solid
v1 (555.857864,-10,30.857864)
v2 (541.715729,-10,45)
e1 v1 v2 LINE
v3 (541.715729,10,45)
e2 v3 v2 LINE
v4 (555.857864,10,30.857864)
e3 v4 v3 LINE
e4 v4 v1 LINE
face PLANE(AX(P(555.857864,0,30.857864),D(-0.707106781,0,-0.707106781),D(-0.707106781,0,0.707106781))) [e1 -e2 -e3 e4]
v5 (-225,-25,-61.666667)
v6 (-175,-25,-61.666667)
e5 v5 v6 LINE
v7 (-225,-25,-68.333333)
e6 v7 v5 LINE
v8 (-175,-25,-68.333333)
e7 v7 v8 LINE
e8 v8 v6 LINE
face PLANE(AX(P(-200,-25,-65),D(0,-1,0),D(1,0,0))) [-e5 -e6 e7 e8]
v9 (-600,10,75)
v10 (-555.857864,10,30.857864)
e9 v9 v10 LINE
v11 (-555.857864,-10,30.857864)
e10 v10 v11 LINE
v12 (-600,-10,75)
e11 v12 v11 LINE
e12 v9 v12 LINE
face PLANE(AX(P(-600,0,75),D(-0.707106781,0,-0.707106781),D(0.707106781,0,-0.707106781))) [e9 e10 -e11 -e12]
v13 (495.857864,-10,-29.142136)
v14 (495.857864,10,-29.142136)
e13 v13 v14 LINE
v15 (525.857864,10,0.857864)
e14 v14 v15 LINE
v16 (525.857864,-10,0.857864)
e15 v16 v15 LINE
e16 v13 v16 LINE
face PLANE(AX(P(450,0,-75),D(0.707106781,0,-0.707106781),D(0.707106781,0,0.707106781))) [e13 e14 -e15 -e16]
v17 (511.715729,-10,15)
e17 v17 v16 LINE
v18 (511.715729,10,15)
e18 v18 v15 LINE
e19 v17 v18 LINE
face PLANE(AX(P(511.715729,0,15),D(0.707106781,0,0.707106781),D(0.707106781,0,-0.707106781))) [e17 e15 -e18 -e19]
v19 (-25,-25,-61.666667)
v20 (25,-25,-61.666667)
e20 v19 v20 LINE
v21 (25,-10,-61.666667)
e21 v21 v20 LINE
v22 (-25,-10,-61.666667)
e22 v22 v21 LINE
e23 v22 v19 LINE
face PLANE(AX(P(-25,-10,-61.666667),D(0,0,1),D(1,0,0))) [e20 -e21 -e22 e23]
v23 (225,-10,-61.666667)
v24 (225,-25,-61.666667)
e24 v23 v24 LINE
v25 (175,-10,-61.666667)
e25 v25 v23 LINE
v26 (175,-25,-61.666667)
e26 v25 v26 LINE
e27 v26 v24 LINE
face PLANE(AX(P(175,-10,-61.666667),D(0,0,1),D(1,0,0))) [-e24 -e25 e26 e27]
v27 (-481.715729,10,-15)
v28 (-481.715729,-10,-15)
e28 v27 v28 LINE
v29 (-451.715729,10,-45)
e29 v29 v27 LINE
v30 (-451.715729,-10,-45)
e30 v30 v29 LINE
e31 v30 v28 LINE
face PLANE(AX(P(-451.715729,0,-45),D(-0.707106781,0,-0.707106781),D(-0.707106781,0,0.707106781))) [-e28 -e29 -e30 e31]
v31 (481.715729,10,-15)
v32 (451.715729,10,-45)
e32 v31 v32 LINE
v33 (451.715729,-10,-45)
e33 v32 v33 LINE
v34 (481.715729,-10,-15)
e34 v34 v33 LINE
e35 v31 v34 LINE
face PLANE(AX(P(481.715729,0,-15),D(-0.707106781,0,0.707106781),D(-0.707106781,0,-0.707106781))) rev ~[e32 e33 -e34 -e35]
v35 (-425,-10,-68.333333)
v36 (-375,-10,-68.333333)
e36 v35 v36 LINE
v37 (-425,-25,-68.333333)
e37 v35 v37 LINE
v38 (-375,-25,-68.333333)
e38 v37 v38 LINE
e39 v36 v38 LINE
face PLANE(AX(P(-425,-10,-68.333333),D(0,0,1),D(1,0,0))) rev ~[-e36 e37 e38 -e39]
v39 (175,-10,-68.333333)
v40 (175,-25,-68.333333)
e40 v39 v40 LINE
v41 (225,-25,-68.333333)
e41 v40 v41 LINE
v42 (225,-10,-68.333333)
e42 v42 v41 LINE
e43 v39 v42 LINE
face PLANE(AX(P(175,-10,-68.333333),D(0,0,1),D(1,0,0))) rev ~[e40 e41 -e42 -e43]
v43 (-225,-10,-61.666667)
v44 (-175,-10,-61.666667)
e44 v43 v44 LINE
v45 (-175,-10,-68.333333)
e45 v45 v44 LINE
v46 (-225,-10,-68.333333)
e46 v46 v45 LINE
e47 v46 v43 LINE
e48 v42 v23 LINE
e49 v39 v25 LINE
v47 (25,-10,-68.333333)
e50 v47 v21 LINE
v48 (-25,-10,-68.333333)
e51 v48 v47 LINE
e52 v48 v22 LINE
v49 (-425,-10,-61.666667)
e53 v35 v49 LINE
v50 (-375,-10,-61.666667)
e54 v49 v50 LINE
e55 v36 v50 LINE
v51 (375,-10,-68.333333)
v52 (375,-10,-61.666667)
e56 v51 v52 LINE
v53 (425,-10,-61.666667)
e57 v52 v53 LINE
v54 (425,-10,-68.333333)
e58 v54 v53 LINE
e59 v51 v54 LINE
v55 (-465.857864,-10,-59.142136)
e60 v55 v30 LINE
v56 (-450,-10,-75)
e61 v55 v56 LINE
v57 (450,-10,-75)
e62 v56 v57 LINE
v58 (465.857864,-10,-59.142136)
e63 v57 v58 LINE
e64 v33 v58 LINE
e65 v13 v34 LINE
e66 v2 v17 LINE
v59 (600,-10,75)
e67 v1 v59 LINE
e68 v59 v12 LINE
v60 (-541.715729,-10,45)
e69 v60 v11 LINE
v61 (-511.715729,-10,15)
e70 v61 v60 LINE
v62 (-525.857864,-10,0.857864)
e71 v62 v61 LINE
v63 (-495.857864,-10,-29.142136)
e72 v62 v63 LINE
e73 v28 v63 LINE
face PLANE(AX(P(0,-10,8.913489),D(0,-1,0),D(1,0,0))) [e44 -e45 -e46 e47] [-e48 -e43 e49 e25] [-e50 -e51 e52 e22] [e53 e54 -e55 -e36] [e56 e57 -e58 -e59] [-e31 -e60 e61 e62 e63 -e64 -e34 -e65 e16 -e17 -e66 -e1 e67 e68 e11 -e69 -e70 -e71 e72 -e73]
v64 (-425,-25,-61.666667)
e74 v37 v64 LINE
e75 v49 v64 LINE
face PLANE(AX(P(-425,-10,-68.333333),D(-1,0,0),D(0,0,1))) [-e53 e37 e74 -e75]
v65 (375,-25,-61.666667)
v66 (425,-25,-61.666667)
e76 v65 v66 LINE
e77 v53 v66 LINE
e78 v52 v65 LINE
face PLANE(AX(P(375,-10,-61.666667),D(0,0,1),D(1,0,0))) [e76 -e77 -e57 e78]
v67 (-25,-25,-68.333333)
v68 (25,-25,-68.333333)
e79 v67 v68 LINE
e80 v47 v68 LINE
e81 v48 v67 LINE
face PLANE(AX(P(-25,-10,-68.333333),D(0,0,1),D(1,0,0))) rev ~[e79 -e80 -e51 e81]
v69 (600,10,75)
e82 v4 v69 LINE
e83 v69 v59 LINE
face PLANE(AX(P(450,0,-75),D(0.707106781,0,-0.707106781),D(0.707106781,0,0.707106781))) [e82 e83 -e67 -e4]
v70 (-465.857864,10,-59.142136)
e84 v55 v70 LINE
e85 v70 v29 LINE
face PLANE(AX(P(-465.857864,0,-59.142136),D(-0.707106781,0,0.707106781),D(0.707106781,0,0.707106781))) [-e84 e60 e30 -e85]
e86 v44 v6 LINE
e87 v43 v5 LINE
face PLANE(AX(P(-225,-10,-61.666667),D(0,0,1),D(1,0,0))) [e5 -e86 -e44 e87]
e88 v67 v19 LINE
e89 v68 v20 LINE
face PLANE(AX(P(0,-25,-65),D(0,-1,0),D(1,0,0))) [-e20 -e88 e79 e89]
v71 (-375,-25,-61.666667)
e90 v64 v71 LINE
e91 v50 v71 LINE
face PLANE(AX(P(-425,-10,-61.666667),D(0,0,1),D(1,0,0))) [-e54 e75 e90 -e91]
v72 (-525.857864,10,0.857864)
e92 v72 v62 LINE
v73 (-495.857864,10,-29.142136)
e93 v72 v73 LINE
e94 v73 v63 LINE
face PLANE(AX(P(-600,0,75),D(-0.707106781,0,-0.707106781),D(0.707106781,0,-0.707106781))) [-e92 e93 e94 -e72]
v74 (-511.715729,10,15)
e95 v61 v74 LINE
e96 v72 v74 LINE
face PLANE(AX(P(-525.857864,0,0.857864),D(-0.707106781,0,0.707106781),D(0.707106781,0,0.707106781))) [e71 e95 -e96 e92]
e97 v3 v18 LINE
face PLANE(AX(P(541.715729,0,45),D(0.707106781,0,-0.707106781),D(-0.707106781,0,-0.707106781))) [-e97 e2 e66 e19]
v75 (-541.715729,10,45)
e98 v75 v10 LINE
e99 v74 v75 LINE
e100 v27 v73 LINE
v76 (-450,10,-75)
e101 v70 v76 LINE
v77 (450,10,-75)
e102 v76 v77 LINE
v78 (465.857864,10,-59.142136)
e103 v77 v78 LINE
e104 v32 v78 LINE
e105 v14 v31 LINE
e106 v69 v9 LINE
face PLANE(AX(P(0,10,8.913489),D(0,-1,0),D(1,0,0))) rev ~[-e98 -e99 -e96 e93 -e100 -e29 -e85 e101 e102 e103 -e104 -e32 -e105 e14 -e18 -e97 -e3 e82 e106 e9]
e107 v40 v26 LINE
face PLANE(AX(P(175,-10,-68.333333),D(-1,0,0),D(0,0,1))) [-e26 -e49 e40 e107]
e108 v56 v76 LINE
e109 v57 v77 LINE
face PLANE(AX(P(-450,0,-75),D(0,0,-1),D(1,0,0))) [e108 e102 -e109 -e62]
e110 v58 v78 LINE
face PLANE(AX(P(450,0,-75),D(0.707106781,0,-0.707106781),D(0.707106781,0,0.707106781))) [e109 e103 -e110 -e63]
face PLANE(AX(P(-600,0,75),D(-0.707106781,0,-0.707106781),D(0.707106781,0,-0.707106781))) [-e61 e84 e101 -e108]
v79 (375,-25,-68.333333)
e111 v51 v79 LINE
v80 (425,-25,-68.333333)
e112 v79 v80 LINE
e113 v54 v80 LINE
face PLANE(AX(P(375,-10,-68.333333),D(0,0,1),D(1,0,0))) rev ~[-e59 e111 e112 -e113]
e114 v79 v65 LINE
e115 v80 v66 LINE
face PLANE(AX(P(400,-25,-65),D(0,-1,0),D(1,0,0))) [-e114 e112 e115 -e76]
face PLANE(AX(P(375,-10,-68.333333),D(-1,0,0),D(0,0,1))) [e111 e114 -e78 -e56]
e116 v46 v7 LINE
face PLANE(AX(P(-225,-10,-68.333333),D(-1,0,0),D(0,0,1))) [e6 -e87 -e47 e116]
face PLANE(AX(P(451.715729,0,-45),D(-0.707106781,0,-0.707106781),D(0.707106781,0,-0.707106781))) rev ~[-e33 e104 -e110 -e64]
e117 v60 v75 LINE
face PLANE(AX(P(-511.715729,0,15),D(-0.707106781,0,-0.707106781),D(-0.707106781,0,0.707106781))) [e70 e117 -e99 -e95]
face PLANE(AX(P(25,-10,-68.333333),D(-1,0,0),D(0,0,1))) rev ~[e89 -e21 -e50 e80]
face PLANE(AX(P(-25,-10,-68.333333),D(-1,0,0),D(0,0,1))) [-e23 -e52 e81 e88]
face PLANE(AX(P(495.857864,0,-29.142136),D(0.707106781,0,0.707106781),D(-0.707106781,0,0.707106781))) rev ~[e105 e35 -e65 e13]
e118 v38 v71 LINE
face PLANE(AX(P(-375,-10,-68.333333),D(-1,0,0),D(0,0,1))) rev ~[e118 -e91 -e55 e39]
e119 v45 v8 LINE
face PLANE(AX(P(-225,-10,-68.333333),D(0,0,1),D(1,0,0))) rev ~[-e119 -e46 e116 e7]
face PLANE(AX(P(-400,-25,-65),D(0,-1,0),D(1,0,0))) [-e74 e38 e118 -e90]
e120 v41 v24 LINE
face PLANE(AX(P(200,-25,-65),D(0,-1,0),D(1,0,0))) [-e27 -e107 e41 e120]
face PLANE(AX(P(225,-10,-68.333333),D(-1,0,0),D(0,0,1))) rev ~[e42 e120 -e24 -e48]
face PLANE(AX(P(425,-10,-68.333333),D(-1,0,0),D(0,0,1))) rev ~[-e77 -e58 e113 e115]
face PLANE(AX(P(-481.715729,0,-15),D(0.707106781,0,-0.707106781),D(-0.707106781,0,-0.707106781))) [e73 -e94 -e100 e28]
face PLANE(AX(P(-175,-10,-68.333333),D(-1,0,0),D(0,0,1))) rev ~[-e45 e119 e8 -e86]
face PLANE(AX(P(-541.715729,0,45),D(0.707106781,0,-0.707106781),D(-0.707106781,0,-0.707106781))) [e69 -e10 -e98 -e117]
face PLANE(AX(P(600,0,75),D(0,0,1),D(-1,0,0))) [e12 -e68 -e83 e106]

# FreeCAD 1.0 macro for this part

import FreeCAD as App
import Part
import Sketcher
from FreeCAD import Vector


def add_polygon(sketch, points):
    """Adds a closed chain of lines whose ends are joined by coincident constraints."""
    first, n = sketch.GeometryCount, len(points)
    for a, b in zip(points, points[1:] + points[:1]):
        sketch.addGeometry(Part.LineSegment(App.Vector(*a, 0), App.Vector(*b, 0)), False)
    for i in range(n):
        sketch.addConstraint(Sketcher.Constraint("Coincident", first + i, 2, first + (i + 1) % n, 1))

doc = App.newDocument("Part")
body = doc.addObject("PartDesign::Body", "Body")

# Sketch on XZ plane
sketch1 = body.newObject("Sketcher::SketchObject", "Sketch")
sketch1.AttachmentSupport = (doc.getObject("XZ_Plane"), [""])
sketch1.MapMode = "FlatFace"
add_polygon(sketch1, [(450, -75), (600, 75), (-600, 75), (-450, -75)])  # lines 0-3
sketch1.addConstraint([
    Sketcher.Constraint("Horizontal", 1),
    Sketcher.Constraint("Horizontal", 3),
    Sketcher.Constraint("Perpendicular", 0, 2),
    Sketcher.Constraint("Equal", 0, 2),
    Sketcher.Constraint("DistanceX", 1, 2, 1, 1, 1200.0),
    Sketcher.Constraint("DistanceX", 3, 1, 3, 2, 900.0),
    Sketcher.Constraint("DistanceX", -1, 1, 0, 2, 600.0),
    Sketcher.Constraint("DistanceY", -1, 1, 0, 2, 75.0),
])
pad1 = body.newObject("PartDesign::Pad", "Pad")
pad1.Profile = sketch1
pad1.Length = 20
pad1.Midplane = True

# Sketch on XZ plane
sketch2 = body.newObject("Sketcher::SketchObject", "Sketch001")
sketch2.AttachmentSupport = (doc.getObject("XZ_Plane"), [""])
sketch2.MapMode = "FlatFace"
add_polygon(sketch2, [(-542, 45), (-556, 31), (-526, 1), (-512, 15)])  # lines 0-3
add_polygon(sketch2, [(-452, -45), (-482, -15), (-496, -29), (-466, -59)])  # lines 4-7
add_polygon(sketch2, [(526, 1), (556, 31), (542, 45), (512, 15)])  # lines 8-11
add_polygon(sketch2, [(496, -29), (482, -15), (452, -45), (466, -59)])  # lines 12-15
sketch2.addConstraint([
    Sketcher.Constraint("Symmetric", 0, 2, 8, 2, -2),
    Sketcher.Constraint("Symmetric", 3, 2, 9, 2, -2),
    Sketcher.Constraint("Symmetric", 2, 2, 10, 2, -2),
    Sketcher.Constraint("Symmetric", 1, 2, 11, 2, -2),
    Sketcher.Constraint("Symmetric", 4, 2, 12, 2, -2),
    Sketcher.Constraint("Symmetric", 7, 2, 13, 2, -2),
    Sketcher.Constraint("Symmetric", 6, 2, 14, 2, -2),
    Sketcher.Constraint("Symmetric", 5, 2, 15, 2, -2),
    Sketcher.Constraint("Perpendicular", 0, 1),
    Sketcher.Constraint("Perpendicular", 1, 2),
    Sketcher.Constraint("Perpendicular", 2, 3),
    Sketcher.Constraint("Parallel", 3, 4),
    Sketcher.Constraint("Perpendicular", 4, 5),
    Sketcher.Constraint("Perpendicular", 5, 6),
    Sketcher.Constraint("Perpendicular", 6, 7),
    Sketcher.Constraint("Parallel", 7, 8),
    Sketcher.Constraint("Equal", 3, 4),
    Sketcher.Constraint("Equal", 2, 5),
    Sketcher.Constraint("Distance", 0, 20.0),
    Sketcher.Constraint("DistanceY", -1, 1, 2, 2, 15.0),
    Sketcher.Constraint("DistanceY", -1, 1, 3, 2, 45.0),
    Sketcher.Constraint("DistanceY", 4, 2, -1, 1, 15.0),
    Sketcher.Constraint("DistanceX", 2, 2, 4, 2, 30.0),
    Sketcher.Constraint("DistanceX", 2, 2, -1, 1, 511.715729),
])
pocket1 = body.newObject("PartDesign::Pocket", "Pocket")
pocket1.Profile = sketch2
pocket1.Length = 20
pocket1.Midplane = True

# Sketch on XZ plane
sketch3 = body.newObject("Sketcher::SketchObject", "Sketch002")
sketch3.AttachmentSupport = (doc.getObject("XZ_Plane"), [""])
sketch3.MapMode = "FlatFace"
sketch3.AttachmentOffset = App.Placement(Vector(0, 0, 10), App.Rotation())
add_polygon(sketch3, [(-25, -62), (-25, -68), (25, -68), (25, -62)])  # lines 0-3
add_polygon(sketch3, [(175, -62), (175, -68), (225, -68), (225, -62)])  # lines 4-7
add_polygon(sketch3, [(375, -62), (375, -68), (425, -68), (425, -62)])  # lines 8-11
add_polygon(sketch3, [(-225, -62), (-225, -68), (-175, -68), (-175, -62)])  # lines 12-15
add_polygon(sketch3, [(-425, -62), (-425, -68), (-375, -68), (-375, -62)])  # lines 16-19
sketch3.addConstraint([
    Sketcher.Constraint("Vertical", 0),
    Sketcher.Constraint("Horizontal", 1),
    Sketcher.Constraint("Vertical", 2),
    Sketcher.Constraint("Horizontal", 3),
    Sketcher.Constraint("Vertical", 4),
    Sketcher.Constraint("Horizontal", 5),
    Sketcher.Constraint("Vertical", 6),
    Sketcher.Constraint("Horizontal", 7),
    Sketcher.Constraint("Vertical", 8),
    Sketcher.Constraint("Horizontal", 9),
    Sketcher.Constraint("Vertical", 10),
    Sketcher.Constraint("Horizontal", 11),
    Sketcher.Constraint("Vertical", 12),
    Sketcher.Constraint("Horizontal", 13),
    Sketcher.Constraint("Vertical", 14),
    Sketcher.Constraint("Horizontal", 15),
    Sketcher.Constraint("Vertical", 16),
    Sketcher.Constraint("Horizontal", 17),
    Sketcher.Constraint("Vertical", 18),
    Sketcher.Constraint("Horizontal", 19),
    Sketcher.Constraint("Symmetric", 5, 2, 12, 2, -2),
    Sketcher.Constraint("Symmetric", 7, 2, 14, 2, -2),
    Sketcher.Constraint("Symmetric", 9, 2, 16, 2, -2),
    Sketcher.Constraint("Symmetric", 11, 2, 18, 2, -2),
    Sketcher.Constraint("Horizontal", 1, 2, 4, 2),
    Sketcher.Constraint("Horizontal", 3, 2, 6, 2),
    Sketcher.Constraint("Horizontal", 5, 2, 8, 2),
    Sketcher.Constraint("Horizontal", 7, 2, 10, 2),
    Sketcher.Constraint("Equal", 3, 5),
    Sketcher.Constraint("Equal", 7, 9),
    Sketcher.Constraint("DistanceX", 1, 1, 1, 2, 50.0),
    Sketcher.Constraint("DistanceX", 0, 2, -1, 1, 25.0),
    Sketcher.Constraint("DistanceX", -1, 1, 4, 2, 175.0),
    Sketcher.Constraint("DistanceX", -1, 1, 8, 2, 375.0),
    Sketcher.Constraint("DistanceY", 0, 2, 0, 1, 6.666667),
    Sketcher.Constraint("DistanceY", 0, 2, -1, 1, 68.333333),
])
pad2 = body.newObject("PartDesign::Pad", "Pad001")
pad2.Profile = sketch3
pad2.Length = 15

doc.recompute()
